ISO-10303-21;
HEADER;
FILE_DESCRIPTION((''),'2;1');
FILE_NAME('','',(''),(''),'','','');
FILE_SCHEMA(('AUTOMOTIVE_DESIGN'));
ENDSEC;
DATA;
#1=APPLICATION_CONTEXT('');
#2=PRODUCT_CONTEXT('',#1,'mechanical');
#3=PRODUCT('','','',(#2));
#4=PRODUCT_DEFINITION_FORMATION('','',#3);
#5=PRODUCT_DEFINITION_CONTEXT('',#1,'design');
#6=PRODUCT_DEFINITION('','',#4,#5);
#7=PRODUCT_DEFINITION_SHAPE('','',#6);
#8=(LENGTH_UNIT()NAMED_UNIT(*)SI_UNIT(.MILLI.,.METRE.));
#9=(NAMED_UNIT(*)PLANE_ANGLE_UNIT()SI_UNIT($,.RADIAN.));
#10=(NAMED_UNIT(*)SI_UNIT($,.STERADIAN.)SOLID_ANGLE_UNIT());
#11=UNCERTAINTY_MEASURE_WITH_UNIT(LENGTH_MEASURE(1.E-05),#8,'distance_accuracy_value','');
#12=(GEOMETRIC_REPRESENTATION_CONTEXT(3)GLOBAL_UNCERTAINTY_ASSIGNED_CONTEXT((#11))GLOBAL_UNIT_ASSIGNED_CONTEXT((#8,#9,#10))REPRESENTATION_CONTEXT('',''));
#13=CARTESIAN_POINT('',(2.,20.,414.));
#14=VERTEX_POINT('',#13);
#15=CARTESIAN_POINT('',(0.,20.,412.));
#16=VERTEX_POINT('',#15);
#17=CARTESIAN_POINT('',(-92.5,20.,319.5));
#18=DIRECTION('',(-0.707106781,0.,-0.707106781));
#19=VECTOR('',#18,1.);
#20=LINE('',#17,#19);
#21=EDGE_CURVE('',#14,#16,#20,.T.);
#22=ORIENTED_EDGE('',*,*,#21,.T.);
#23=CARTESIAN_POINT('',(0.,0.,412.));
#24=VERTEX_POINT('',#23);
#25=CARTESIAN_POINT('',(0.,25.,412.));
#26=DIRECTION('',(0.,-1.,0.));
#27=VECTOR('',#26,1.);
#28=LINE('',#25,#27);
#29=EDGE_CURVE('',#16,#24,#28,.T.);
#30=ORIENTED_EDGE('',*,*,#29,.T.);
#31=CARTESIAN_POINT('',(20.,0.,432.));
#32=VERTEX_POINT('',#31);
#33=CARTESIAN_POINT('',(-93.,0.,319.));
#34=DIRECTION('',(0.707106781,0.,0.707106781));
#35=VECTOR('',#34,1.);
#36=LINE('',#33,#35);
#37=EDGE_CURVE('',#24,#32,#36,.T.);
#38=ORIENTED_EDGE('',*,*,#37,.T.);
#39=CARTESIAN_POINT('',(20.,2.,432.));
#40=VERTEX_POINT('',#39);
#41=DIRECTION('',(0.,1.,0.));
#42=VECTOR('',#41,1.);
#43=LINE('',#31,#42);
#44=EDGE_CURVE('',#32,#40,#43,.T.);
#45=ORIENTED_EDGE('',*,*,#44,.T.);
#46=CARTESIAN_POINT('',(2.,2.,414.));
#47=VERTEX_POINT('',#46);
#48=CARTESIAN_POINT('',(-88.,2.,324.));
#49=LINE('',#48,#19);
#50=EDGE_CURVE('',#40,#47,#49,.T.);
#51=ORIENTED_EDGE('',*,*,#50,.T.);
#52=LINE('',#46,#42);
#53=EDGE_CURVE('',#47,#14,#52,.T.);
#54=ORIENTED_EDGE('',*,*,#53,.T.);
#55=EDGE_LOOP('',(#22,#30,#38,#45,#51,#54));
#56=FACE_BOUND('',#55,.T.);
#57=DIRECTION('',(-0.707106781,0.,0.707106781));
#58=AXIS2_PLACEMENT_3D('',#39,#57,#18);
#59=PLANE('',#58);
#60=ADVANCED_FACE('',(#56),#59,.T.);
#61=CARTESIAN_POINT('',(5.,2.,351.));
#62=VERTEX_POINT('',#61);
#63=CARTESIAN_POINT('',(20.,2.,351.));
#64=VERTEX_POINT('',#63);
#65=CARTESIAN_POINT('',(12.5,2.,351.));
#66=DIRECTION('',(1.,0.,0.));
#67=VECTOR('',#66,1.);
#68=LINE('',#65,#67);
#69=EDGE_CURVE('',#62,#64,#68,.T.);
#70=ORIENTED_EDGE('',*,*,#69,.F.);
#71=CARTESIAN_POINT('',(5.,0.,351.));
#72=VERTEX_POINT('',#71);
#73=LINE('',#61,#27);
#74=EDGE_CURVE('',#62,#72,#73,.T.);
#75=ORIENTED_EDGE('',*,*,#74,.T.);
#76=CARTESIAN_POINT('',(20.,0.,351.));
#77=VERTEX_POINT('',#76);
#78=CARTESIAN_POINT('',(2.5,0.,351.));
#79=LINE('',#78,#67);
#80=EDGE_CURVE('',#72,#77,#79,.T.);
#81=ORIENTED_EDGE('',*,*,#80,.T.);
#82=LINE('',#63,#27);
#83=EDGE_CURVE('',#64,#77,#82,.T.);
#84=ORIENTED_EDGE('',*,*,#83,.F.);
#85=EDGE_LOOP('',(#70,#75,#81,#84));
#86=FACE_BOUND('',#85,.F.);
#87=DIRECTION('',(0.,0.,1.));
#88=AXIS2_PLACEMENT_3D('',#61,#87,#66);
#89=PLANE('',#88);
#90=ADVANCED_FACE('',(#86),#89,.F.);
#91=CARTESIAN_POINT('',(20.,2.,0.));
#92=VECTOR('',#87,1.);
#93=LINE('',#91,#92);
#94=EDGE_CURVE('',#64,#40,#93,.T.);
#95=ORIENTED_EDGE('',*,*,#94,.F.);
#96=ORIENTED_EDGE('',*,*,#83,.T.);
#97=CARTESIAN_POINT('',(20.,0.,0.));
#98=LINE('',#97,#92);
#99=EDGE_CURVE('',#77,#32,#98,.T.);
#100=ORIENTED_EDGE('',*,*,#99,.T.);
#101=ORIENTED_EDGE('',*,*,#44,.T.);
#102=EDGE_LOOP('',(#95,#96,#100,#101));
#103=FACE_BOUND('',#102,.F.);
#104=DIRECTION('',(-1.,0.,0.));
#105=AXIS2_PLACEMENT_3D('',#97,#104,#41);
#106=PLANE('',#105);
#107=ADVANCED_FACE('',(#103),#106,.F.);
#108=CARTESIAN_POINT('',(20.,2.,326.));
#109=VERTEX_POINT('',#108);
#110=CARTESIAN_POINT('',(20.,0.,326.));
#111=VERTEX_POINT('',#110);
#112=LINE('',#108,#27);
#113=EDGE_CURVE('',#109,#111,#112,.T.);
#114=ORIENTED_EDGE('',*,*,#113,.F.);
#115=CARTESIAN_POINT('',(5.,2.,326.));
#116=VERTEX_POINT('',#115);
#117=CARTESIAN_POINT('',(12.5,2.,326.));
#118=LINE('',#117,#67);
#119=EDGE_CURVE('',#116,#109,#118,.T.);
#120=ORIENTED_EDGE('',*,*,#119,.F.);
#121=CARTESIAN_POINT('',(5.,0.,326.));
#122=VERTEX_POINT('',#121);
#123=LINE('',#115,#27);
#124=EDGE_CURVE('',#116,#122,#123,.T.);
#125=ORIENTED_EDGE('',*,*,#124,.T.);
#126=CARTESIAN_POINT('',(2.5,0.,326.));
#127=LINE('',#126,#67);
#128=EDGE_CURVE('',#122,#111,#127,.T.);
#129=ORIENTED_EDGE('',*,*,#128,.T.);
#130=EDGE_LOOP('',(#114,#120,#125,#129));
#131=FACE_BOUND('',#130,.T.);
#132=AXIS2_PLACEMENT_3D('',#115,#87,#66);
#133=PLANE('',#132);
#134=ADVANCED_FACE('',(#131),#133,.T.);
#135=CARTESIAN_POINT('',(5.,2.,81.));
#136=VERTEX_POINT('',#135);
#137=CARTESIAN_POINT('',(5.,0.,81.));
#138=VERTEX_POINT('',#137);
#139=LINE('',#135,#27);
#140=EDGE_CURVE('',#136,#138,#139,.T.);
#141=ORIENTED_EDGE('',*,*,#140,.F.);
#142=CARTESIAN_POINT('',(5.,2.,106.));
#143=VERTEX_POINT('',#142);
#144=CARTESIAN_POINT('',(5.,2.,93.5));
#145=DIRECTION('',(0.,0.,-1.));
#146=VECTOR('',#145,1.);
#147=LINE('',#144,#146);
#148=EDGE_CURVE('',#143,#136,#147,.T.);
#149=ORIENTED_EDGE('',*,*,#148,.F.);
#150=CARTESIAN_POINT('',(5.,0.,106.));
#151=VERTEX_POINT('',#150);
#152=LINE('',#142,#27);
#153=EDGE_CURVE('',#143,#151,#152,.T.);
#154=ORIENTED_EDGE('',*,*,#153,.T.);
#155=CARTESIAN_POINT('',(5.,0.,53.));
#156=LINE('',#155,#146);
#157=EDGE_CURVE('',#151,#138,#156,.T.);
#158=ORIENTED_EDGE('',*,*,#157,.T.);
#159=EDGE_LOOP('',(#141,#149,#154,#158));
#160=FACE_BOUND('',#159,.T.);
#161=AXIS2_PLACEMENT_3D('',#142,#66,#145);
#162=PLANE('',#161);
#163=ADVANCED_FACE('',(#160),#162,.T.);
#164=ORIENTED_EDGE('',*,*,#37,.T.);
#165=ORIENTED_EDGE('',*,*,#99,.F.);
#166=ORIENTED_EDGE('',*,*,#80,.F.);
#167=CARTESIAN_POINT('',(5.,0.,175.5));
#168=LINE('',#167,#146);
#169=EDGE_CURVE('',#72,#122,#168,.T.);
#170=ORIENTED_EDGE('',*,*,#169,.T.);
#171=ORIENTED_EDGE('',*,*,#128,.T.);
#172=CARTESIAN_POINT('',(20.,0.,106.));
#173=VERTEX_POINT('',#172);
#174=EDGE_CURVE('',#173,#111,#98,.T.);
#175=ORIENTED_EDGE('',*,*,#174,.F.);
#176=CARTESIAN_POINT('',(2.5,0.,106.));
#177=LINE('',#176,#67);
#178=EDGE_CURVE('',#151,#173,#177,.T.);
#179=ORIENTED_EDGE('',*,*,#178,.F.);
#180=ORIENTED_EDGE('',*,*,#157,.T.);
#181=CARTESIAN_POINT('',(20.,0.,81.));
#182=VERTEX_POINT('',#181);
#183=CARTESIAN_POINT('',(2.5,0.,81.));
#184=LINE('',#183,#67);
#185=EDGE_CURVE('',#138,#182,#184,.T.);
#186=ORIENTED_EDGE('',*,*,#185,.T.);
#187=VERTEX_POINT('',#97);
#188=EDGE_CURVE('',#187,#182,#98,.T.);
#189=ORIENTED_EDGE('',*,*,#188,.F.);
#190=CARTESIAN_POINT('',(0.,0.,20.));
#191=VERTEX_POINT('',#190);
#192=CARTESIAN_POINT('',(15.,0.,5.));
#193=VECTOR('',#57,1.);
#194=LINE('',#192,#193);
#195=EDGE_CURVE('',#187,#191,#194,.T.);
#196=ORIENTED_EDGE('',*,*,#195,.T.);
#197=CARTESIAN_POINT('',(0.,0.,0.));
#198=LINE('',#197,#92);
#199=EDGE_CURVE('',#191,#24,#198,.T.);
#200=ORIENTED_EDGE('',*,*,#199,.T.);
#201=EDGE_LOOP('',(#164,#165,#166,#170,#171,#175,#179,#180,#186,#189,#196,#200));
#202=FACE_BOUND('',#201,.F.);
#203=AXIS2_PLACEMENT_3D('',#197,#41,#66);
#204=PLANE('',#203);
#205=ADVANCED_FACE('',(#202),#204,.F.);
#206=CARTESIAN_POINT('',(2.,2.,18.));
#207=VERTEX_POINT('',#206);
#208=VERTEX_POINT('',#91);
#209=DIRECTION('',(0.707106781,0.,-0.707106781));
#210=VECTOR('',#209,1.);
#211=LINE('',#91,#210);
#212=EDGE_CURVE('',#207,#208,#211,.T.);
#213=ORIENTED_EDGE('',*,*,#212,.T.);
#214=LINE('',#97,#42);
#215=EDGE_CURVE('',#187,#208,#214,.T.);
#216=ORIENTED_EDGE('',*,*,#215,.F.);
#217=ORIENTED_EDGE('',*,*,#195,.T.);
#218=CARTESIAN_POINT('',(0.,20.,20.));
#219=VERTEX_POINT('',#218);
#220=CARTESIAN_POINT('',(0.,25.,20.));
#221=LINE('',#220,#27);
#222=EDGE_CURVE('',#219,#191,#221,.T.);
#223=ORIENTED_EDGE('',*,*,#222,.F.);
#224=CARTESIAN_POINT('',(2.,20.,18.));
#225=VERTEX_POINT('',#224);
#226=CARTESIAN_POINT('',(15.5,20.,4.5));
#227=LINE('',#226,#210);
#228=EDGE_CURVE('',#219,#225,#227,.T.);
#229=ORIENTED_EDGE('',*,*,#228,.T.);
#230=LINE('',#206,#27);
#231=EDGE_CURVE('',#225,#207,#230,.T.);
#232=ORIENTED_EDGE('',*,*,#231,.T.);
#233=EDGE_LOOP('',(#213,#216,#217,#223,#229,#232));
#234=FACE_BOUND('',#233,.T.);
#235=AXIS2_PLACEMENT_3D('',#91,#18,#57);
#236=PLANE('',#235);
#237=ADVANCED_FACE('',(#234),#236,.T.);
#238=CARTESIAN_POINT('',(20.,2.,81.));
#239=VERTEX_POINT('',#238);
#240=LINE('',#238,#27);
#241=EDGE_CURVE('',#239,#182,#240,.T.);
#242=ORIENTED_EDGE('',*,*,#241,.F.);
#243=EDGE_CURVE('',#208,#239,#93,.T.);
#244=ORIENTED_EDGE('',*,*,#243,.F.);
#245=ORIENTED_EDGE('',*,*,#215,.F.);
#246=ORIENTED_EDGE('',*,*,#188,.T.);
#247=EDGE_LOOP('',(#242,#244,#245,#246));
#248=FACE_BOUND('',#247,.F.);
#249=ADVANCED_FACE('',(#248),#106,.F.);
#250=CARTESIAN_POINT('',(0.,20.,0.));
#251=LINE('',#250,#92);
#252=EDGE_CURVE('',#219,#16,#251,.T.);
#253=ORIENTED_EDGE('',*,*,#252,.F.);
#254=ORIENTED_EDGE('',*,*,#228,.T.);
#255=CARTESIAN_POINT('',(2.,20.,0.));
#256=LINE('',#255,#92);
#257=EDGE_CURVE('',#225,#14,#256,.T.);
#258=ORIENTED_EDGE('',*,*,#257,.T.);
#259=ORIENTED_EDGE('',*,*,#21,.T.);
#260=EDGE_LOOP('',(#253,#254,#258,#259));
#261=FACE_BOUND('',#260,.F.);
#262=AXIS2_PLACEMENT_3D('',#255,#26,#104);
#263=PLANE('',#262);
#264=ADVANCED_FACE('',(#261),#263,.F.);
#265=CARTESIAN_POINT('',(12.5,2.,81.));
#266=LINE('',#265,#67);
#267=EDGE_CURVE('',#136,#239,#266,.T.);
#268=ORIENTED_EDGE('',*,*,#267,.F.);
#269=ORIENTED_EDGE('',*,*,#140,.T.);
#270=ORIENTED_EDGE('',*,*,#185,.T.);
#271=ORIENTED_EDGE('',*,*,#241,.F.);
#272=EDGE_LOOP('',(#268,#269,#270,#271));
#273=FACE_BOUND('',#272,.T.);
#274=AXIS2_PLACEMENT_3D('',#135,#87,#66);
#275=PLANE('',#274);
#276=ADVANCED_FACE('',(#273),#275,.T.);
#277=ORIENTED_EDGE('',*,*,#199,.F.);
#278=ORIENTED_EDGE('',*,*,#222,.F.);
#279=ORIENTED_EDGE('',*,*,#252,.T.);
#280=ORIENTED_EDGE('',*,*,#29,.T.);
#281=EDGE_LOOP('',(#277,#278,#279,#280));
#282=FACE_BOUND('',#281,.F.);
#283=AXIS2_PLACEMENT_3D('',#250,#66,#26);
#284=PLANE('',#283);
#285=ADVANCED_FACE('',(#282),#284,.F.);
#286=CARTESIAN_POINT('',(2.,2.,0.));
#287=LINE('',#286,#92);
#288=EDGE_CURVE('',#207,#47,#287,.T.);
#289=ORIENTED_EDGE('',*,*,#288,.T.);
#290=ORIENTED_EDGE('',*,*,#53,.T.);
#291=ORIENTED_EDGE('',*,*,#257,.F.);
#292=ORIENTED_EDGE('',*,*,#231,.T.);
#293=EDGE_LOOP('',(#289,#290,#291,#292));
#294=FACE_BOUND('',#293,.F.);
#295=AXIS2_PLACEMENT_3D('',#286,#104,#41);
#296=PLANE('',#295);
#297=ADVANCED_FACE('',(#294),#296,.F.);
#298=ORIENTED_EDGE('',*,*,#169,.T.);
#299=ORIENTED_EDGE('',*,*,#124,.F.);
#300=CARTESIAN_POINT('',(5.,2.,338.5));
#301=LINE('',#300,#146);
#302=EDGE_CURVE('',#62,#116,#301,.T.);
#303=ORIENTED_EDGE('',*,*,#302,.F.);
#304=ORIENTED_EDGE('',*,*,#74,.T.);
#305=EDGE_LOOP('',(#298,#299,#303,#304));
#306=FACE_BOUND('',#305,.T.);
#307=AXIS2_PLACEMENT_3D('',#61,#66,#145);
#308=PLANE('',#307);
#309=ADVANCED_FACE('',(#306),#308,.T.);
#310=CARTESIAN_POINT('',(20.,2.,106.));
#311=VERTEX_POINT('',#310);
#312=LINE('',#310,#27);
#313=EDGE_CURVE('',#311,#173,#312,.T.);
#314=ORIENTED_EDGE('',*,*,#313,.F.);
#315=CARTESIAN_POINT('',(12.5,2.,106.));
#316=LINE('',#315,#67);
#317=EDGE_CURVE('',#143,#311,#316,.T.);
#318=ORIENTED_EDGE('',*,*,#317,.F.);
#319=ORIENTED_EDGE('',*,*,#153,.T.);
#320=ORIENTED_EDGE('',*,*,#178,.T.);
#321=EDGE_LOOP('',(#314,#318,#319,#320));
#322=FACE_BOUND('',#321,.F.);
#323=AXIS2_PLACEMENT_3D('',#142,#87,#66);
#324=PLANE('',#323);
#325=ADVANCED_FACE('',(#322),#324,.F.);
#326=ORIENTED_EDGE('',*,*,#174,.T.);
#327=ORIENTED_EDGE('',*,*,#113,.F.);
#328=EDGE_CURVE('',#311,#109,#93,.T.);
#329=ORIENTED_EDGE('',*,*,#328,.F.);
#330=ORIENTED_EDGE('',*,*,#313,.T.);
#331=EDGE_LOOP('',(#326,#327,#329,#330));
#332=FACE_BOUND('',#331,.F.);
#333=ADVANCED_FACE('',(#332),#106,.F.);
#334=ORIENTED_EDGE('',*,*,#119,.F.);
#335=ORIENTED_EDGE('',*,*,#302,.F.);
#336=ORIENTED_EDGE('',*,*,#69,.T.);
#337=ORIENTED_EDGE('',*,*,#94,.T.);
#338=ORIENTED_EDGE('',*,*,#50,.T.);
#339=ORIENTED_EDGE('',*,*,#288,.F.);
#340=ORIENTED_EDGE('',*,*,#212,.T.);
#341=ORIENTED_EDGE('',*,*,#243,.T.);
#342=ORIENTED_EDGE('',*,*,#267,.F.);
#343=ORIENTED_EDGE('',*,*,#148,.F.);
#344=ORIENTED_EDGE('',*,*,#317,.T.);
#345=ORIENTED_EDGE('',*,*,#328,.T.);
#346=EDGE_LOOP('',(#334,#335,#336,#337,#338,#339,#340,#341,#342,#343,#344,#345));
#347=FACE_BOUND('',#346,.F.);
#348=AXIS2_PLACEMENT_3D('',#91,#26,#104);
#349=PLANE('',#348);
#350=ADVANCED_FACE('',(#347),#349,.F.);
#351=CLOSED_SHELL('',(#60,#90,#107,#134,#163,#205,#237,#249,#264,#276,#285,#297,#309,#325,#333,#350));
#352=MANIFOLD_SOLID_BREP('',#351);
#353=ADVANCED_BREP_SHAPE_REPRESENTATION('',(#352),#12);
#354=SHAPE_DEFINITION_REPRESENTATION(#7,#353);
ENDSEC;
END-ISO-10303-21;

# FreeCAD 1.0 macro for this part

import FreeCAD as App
import Part
import Sketcher
from FreeCAD import Vector

doc = App.newDocument("Part")
body = doc.addObject("PartDesign::Body", "Body")

sketch1 = body.newObject("Sketcher::SketchObject", "Sketch")
sketch1.AttachmentSupport = (doc.getObject("XY_Plane"), [""])
sketch1.MapMode = "FlatFace"
sketch1.addGeometry(Part.LineSegment(Vector(0, 0, 0), Vector(20, 0, 0)), False)
sketch1.addGeometry(Part.LineSegment(Vector(20, 0, 0), Vector(20, 2, 0)), False)
sketch1.addGeometry(Part.LineSegment(Vector(20, 2, 0), Vector(2, 2, 0)), False)
sketch1.addGeometry(Part.LineSegment(Vector(2, 2, 0), Vector(2, 20, 0)), False)
sketch1.addGeometry(Part.LineSegment(Vector(2, 20, 0), Vector(0, 20, 0)), False)
sketch1.addGeometry(Part.LineSegment(Vector(0, 20, 0), Vector(0, 0, 0)), False)
sketch1.addConstraint(Sketcher.Constraint("Coincident", 0, 2, 1, 1))
sketch1.addConstraint(Sketcher.Constraint("Coincident", 1, 2, 2, 1))
sketch1.addConstraint(Sketcher.Constraint("Coincident", 2, 2, 3, 1))
sketch1.addConstraint(Sketcher.Constraint("Coincident", 3, 2, 4, 1))
sketch1.addConstraint(Sketcher.Constraint("Coincident", 4, 2, 5, 1))
sketch1.addConstraint(Sketcher.Constraint("Coincident", 5, 2, 0, 1))
sketch1.addConstraint(Sketcher.Constraint("Horizontal", 0))
sketch1.addConstraint(Sketcher.Constraint("Vertical", 1))
sketch1.addConstraint(Sketcher.Constraint("Horizontal", 2))
sketch1.addConstraint(Sketcher.Constraint("Vertical", 3))
sketch1.addConstraint(Sketcher.Constraint("Horizontal", 4))
sketch1.addConstraint(Sketcher.Constraint("Vertical", 5))
sketch1.addConstraint(Sketcher.Constraint("Coincident", 5, 2, -1, 1))
sketch1.addConstraint(Sketcher.Constraint("Equal", 4, 1))
sketch1.addConstraint(Sketcher.Constraint("Equal", 2, 3))
sketch1.addConstraint(Sketcher.Constraint("DistanceX", 0, 1, 0, 2, 20.0))
sketch1.addConstraint(Sketcher.Constraint("DistanceX", 2, 2, 2, 1, 18.0))
pad1 = body.newObject("PartDesign::Pad", "Pad")
pad1.Profile = sketch1
pad1.Length = 432

sketch2 = body.newObject("Sketcher::SketchObject", "Sketch001")
sketch2.AttachmentSupport = (doc.getObject("XZ_Plane"), [""])
sketch2.MapMode = "FlatFace"
sketch2.AttachmentOffset = App.Placement(Vector(0, 0, -2), App.Rotation())
sketch2.addGeometry(Part.LineSegment(Vector(0, 432, 0), Vector(20, 432, 0)), False)
sketch2.addGeometry(Part.LineSegment(Vector(20, 432, 0), Vector(0, 412, 0)), False)
sketch2.addGeometry(Part.LineSegment(Vector(0, 412, 0), Vector(0, 432, 0)), False)
sketch2.addGeometry(Part.LineSegment(Vector(0, 20, 0), Vector(20, 0, 0)), False)
sketch2.addGeometry(Part.LineSegment(Vector(20, 0, 0), Vector(0, 0, 0)), False)
sketch2.addGeometry(Part.LineSegment(Vector(0, 0, 0), Vector(0, 20, 0)), False)
sketch2.addConstraint(Sketcher.Constraint("Coincident", 0, 2, 1, 1))
sketch2.addConstraint(Sketcher.Constraint("Coincident", 1, 2, 2, 1))
sketch2.addConstraint(Sketcher.Constraint("Coincident", 2, 2, 0, 1))
sketch2.addConstraint(Sketcher.Constraint("Coincident", 3, 2, 4, 1))
sketch2.addConstraint(Sketcher.Constraint("Coincident", 4, 2, 5, 1))
sketch2.addConstraint(Sketcher.Constraint("Coincident", 5, 2, 3, 1))
sketch2.addConstraint(Sketcher.Constraint("Horizontal", 0))
sketch2.addConstraint(Sketcher.Constraint("Vertical", 2))
sketch2.addConstraint(Sketcher.Constraint("Horizontal", 4))
sketch2.addConstraint(Sketcher.Constraint("Vertical", 5))
sketch2.addConstraint(Sketcher.Constraint("Coincident", 4, 2, -1, 1))
sketch2.addConstraint(Sketcher.Constraint("PointOnObject", 1, 2, -2))
sketch2.addConstraint(Sketcher.Constraint("Perpendicular", 1, 3))
sketch2.addConstraint(Sketcher.Constraint("Vertical", 0, 2, 3, 2))
sketch2.addConstraint(Sketcher.Constraint("Equal", 4, 2))
sketch2.addConstraint(Sketcher.Constraint("DistanceX", 0, 1, 0, 2, 20.0))
sketch2.addConstraint(Sketcher.Constraint("DistanceY", -1, 1, 0, 2, 432.0))
pocket1 = body.newObject("PartDesign::Pocket", "Pocket")
pocket1.Profile = sketch2
pocket1.Length = 46
pocket1.Midplane = True

sketch3 = body.newObject("Sketcher::SketchObject", "Sketch002")
sketch3.AttachmentSupport = (doc.getObject("XZ_Plane"), [""])
sketch3.MapMode = "FlatFace"
sketch3.AttachmentOffset = App.Placement(Vector(0, 0, -2), App.Rotation())
sketch3.addGeometry(Part.LineSegment(Vector(5, 81, 0), Vector(5, 106, 0)), False)
sketch3.addGeometry(Part.LineSegment(Vector(5, 106, 0), Vector(20, 106, 0)), False)
sketch3.addGeometry(Part.LineSegment(Vector(20, 106, 0), Vector(20, 81, 0)), False)
sketch3.addGeometry(Part.LineSegment(Vector(20, 81, 0), Vector(5, 81, 0)), False)
sketch3.addGeometry(Part.LineSegment(Vector(5, 326, 0), Vector(5, 351, 0)), False)
sketch3.addGeometry(Part.LineSegment(Vector(5, 351, 0), Vector(20, 351, 0)), False)
sketch3.addGeometry(Part.LineSegment(Vector(20, 351, 0), Vector(20, 326, 0)), False)
sketch3.addGeometry(Part.LineSegment(Vector(20, 326, 0), Vector(5, 326, 0)), False)
sketch3.addConstraint(Sketcher.Constraint("Coincident", 0, 2, 1, 1))
sketch3.addConstraint(Sketcher.Constraint("Coincident", 1, 2, 2, 1))
sketch3.addConstraint(Sketcher.Constraint("Coincident", 2, 2, 3, 1))
sketch3.addConstraint(Sketcher.Constraint("Coincident", 3, 2, 0, 1))
sketch3.addConstraint(Sketcher.Constraint("Coincident", 4, 2, 5, 1))
sketch3.addConstraint(Sketcher.Constraint("Coincident", 5, 2, 6, 1))
sketch3.addConstraint(Sketcher.Constraint("Coincident", 6, 2, 7, 1))
sketch3.addConstraint(Sketcher.Constraint("Coincident", 7, 2, 4, 1))
sketch3.addConstraint(Sketcher.Constraint("Vertical", 0))
sketch3.addConstraint(Sketcher.Constraint("Horizontal", 1))
sketch3.addConstraint(Sketcher.Constraint("Vertical", 2))
sketch3.addConstraint(Sketcher.Constraint("Horizontal", 3))
sketch3.addConstraint(Sketcher.Constraint("Vertical", 4))
sketch3.addConstraint(Sketcher.Constraint("Horizontal", 5))
sketch3.addConstraint(Sketcher.Constraint("Vertical", 6))
sketch3.addConstraint(Sketcher.Constraint("Horizontal", 7))
sketch3.addConstraint(Sketcher.Constraint("Vertical", 3, 2, 4, 2))
sketch3.addConstraint(Sketcher.Constraint("Vertical", 2, 2, 5, 2))
sketch3.addConstraint(Sketcher.Constraint("Equal", 2, 4))
sketch3.addConstraint(Sketcher.Constraint("DistanceX", 1, 1, 1, 2, 15.0))
sketch3.addConstraint(Sketcher.Constraint("DistanceY", 0, 1, 0, 2, 25.0))
sketch3.addConstraint(Sketcher.Constraint("DistanceX", -1, 1, 0, 2, 5.0))
sketch3.addConstraint(Sketcher.Constraint("DistanceY", -1, 1, 0, 2, 106.0))
sketch3.addConstraint(Sketcher.Constraint("DistanceY", -1, 1, 4, 2, 351.0))
pocket2 = body.newObject("PartDesign::Pocket", "Pocket001")
pocket2.Profile = sketch3
pocket2.Type = "ThroughAll"
pocket2.Reversed = True

doc.recompute()
